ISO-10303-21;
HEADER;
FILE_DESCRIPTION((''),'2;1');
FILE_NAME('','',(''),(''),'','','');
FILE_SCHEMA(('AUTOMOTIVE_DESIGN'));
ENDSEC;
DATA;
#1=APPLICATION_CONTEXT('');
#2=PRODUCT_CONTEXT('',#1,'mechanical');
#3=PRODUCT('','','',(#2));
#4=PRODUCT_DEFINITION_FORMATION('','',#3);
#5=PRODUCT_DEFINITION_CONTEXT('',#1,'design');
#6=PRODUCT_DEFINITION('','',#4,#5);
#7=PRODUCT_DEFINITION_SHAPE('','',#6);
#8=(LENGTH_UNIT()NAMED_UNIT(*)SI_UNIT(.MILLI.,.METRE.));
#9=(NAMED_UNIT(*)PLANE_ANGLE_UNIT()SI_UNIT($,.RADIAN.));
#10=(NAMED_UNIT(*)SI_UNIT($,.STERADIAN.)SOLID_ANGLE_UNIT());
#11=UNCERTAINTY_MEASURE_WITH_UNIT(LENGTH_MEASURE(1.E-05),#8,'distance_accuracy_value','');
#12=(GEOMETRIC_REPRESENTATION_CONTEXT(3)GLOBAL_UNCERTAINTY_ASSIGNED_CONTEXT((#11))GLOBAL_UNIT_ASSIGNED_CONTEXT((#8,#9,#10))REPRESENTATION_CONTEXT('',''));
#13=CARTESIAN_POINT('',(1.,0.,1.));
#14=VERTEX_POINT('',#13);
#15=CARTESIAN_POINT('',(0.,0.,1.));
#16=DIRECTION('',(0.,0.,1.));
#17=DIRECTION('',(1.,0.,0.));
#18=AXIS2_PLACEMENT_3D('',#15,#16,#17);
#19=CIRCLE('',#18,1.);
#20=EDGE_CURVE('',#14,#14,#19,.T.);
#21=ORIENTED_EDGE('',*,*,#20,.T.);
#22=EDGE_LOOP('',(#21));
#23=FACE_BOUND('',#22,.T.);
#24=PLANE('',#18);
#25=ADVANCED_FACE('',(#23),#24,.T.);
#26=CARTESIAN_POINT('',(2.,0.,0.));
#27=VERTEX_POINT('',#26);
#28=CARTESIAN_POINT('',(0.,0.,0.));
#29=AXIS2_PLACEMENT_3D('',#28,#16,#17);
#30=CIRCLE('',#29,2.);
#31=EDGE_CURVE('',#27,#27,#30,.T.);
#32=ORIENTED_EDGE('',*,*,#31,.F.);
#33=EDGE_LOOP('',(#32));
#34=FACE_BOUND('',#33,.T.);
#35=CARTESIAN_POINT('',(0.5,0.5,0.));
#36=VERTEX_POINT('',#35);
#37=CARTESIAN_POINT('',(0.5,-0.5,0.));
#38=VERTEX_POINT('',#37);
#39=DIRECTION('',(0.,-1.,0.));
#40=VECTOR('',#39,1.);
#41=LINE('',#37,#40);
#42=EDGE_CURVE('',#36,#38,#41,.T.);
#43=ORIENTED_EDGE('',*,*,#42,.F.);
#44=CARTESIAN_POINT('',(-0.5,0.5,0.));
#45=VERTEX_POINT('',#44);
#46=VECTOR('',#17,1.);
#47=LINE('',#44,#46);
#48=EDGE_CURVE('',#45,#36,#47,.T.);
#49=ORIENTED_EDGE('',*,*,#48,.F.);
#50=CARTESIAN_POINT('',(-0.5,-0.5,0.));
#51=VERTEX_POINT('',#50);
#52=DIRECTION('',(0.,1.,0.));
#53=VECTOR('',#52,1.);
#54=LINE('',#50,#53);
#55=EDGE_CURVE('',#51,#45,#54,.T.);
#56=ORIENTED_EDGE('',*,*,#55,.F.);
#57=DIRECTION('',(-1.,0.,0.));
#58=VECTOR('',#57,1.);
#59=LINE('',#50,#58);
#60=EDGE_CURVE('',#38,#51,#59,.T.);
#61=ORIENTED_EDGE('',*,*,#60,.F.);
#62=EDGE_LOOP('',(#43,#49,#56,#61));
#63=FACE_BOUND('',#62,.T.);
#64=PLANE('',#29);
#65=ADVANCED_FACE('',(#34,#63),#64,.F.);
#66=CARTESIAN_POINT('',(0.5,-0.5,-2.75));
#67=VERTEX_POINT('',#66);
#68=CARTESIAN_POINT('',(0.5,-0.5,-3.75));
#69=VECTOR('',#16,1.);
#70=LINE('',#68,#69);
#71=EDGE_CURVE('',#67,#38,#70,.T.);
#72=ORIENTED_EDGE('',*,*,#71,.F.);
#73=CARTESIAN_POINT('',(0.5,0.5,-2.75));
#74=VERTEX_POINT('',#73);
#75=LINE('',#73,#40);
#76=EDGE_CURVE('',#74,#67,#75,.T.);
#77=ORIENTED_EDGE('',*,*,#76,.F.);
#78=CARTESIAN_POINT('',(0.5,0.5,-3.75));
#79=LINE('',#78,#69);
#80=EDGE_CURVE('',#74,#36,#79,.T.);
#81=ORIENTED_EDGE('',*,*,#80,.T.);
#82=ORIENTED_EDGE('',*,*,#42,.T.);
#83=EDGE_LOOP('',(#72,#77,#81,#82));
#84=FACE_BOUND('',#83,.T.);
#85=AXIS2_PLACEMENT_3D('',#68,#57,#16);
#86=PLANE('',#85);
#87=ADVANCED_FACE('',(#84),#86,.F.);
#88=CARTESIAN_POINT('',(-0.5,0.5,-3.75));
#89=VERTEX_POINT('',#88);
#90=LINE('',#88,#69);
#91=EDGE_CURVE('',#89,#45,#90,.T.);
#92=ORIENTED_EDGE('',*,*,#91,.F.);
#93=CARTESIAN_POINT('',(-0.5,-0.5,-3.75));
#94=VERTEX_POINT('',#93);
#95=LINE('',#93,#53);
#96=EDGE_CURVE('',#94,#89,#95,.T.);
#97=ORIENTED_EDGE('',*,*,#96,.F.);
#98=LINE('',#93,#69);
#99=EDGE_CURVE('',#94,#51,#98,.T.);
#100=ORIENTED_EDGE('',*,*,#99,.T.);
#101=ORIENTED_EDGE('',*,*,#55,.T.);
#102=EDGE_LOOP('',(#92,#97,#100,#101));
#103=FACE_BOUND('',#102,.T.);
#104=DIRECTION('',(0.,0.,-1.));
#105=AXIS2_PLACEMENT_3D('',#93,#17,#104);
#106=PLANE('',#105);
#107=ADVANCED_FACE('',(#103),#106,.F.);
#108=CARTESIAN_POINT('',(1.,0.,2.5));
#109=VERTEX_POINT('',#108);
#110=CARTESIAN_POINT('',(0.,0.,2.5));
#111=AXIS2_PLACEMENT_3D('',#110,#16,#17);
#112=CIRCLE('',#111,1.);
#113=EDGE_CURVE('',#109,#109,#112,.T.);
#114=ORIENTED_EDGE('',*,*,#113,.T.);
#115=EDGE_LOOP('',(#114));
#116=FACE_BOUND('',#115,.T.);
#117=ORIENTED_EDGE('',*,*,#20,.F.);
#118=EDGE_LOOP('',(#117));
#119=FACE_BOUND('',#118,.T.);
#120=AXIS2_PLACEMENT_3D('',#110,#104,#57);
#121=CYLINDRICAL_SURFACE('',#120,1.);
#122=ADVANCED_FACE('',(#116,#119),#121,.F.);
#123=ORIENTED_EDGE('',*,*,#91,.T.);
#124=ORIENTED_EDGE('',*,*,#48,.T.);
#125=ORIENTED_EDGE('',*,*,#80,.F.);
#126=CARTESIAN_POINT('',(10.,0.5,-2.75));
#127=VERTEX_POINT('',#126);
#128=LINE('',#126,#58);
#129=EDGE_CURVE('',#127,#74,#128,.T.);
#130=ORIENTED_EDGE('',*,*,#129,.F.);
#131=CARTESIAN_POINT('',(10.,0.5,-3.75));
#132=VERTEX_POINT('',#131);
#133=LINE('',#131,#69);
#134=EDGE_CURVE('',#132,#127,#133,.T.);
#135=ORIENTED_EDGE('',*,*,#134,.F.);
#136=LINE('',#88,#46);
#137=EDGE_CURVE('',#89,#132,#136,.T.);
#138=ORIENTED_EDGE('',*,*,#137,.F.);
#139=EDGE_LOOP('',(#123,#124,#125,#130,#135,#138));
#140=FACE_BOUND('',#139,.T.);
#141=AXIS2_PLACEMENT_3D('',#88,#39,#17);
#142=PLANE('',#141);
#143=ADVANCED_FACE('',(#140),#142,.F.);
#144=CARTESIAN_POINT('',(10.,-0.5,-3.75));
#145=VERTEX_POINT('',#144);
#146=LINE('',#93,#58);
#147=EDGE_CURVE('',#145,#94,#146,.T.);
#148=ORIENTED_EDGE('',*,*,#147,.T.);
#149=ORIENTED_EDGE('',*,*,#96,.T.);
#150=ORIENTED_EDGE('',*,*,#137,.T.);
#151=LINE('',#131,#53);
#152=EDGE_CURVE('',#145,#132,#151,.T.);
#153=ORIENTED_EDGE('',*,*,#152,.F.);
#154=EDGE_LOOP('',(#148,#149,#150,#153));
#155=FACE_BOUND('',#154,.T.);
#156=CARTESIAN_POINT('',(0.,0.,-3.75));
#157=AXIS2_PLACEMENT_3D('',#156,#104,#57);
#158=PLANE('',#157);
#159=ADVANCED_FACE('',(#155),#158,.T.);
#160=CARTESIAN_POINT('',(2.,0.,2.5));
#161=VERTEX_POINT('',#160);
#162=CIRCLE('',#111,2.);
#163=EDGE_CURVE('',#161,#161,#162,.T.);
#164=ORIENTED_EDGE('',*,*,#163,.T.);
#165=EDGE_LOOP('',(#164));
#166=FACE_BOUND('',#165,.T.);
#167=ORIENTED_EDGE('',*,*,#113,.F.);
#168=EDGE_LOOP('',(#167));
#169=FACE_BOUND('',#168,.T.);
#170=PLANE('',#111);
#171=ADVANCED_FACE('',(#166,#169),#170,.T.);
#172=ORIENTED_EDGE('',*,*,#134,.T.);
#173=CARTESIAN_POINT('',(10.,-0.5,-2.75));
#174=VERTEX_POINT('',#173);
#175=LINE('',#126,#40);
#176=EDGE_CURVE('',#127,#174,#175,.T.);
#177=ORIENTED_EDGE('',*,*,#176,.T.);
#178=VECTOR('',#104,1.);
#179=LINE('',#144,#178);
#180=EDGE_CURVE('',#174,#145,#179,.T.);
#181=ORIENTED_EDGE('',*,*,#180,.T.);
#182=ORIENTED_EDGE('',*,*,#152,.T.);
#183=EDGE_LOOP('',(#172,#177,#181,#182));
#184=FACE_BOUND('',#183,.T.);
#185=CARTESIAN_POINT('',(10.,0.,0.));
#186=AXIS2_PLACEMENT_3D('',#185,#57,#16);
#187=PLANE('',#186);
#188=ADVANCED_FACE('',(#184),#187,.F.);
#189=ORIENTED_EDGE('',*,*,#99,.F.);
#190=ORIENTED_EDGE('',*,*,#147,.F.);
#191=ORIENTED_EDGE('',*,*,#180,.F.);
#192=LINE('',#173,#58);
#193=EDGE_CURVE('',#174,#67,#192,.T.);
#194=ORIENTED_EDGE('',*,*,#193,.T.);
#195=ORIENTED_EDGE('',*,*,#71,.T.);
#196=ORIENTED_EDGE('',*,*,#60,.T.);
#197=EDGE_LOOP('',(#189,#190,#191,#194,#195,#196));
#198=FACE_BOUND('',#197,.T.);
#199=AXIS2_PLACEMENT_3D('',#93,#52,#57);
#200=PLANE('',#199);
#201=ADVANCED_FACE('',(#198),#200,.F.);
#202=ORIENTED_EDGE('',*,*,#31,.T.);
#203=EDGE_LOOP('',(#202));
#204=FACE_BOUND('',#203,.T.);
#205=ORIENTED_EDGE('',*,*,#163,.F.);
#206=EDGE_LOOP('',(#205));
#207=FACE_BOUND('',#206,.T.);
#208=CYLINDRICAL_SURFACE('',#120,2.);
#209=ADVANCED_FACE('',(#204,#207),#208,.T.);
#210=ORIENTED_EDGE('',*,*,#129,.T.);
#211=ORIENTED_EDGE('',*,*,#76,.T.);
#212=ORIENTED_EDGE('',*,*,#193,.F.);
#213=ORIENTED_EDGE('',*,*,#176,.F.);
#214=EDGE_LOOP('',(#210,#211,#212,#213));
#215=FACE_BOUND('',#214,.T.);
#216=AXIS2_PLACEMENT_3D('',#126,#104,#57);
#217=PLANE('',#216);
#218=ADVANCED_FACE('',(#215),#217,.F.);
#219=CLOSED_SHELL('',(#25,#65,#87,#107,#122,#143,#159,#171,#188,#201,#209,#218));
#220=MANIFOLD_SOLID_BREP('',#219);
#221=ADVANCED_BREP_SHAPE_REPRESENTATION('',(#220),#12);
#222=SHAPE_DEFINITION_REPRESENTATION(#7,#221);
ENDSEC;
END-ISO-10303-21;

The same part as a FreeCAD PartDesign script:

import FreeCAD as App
import Part
import Sketcher
from FreeCAD import Vector
Q = App.Units.Quantity


def faces_at(feature, points):
    """Names of the faces that lie closest to the given points."""
    faces = feature.Shape.Faces
    near = lambda p: min(range(len(faces)), key=lambda i: faces[i].distToShape(Part.Vertex(*p))[0])
    return sorted({f"Face{near(p) + 1}" for p in points})


def add_polygon(sketch, points):
    """Adds a closed chain of lines whose ends are joined by coincident constraints."""
    first, n = sketch.GeometryCount, len(points)
    for a, b in zip(points, points[1:] + points[:1]):
        sketch.addGeometry(Part.LineSegment(App.Vector(*a, 0), App.Vector(*b, 0)), False)
    for i in range(n):
        sketch.addConstraint(Sketcher.Constraint("Coincident", first + i, 2, first + (i + 1) % n, 1))

doc = App.newDocument("Part")
params = doc.addObject("Spreadsheet::Sheet", "Params")
for row, (alias, value) in enumerate([
    ("sketch1_diameter", "4 mm"),
    ("pad1_length", "2.5 mm"),
    ("thickness_wall", "1 mm"),
    ("sketch2_width", "1 mm"),
    ("pad2_length", "3.75 mm"),
    ("sketch3_width", "1 mm"),
    ("pad3_length", "9.5 mm"),
], start=1):
    params.set(f"A{row}", alias)
    params.set(f"B{row}", "=" + value)
    params.setAlias(f"B{row}", alias)

body = doc.addObject("PartDesign::Body", "Body")

# Sketch on XY plane
sketch1 = body.newObject("Sketcher::SketchObject", "Sketch")
sketch1.AttachmentSupport = (doc.getObject("XY_Plane"), [""])
sketch1.MapMode = "FlatFace"
sketch1.addGeometry(Part.Circle(Vector(0, 0, 0), Vector(0, 0, 1), 2), False)
sketch1.addConstraint(Sketcher.Constraint("Coincident", 0, 3, -1, 1))
sketch1.addConstraint(Sketcher.Constraint("Diameter", 0, Q("4 mm")))
sketch1.setExpression("Constraints[1]", "Params.sketch1_diameter")
pad1 = body.newObject("PartDesign::Pad", "Pad")
pad1.Profile = sketch1
pad1.setExpression("Length", "Params.pad1_length")
doc.recompute()

thickness = body.newObject("PartDesign::Thickness", "Thickness")
thickness.Base = (pad1, faces_at(pad1, [(0, 0, 2.5)]))
thickness.setExpression("Value", "Params.thickness_wall")
thickness.Reversed = True
thickness.Join = "Intersection"

# Sketch on XY plane
sketch2 = body.newObject("Sketcher::SketchObject", "Sketch001")
sketch2.AttachmentSupport = (doc.getObject("XY_Plane"), [""])
sketch2.MapMode = "FlatFace"
add_polygon(sketch2, [(0.5, 0.5), (0.5, -0.5), (-0.5, -0.5), (-0.5, 0.5)])  # lines 0-3
sketch2.addConstraint(Sketcher.Constraint("Vertical", 0))
sketch2.addConstraint(Sketcher.Constraint("Horizontal", 1))
sketch2.addConstraint(Sketcher.Constraint("Vertical", 2))
sketch2.addConstraint(Sketcher.Constraint("Horizontal", 3))
sketch2.addConstraint(Sketcher.Constraint("Symmetric", 0, 2, 2, 2, -1, 1))
sketch2.addConstraint(Sketcher.Constraint("Equal", 3, 0))
sketch2.addConstraint(Sketcher.Constraint("DistanceX", 1, 2, 1, 1, Q("1 mm")))
sketch2.setExpression("Constraints[10]", "Params.sketch2_width")
pad2 = body.newObject("PartDesign::Pad", "Pad001")
pad2.Profile = sketch2
pad2.setExpression("Length", "Params.pad2_length")
pad2.Reversed = True

# Sketch on YZ plane
sketch3 = body.newObject("Sketcher::SketchObject", "Sketch002")
sketch3.AttachmentSupport = (doc.getObject("YZ_Plane"), [""])
sketch3.MapMode = "FlatFace"
sketch3.AttachmentOffset = App.Placement(Vector(0, 0, 0.5), App.Rotation())
add_polygon(sketch3, [(0.5, -2.75), (-0.5, -2.75), (-0.5, -3.75), (0.5, -3.75)])  # lines 0-3
sketch3.addConstraint(Sketcher.Constraint("Horizontal", 0))
sketch3.addConstraint(Sketcher.Constraint("Vertical", 1))
sketch3.addConstraint(Sketcher.Constraint("Horizontal", 2))
sketch3.addConstraint(Sketcher.Constraint("Vertical", 3))
sketch3.addConstraint(Sketcher.Constraint("Equal", 2, 1))
sketch3.addConstraint(Sketcher.Constraint("DistanceX", 0, 2, 0, 1, Q("1 mm")))
sketch3.addConstraint(Sketcher.Constraint("DistanceX", 0, 2, -1, 1, Q("0.5 mm")))
sketch3.addConstraint(Sketcher.Constraint("DistanceY", 0, 2, -1, 1, Q("2.75 mm")))
sketch3.setExpression("Constraints[9]", "Params.sketch3_width")
pad3 = body.newObject("PartDesign::Pad", "Pad002")
pad3.Profile = sketch3
pad3.setExpression("Length", "Params.pad3_length")

doc.recompute()
